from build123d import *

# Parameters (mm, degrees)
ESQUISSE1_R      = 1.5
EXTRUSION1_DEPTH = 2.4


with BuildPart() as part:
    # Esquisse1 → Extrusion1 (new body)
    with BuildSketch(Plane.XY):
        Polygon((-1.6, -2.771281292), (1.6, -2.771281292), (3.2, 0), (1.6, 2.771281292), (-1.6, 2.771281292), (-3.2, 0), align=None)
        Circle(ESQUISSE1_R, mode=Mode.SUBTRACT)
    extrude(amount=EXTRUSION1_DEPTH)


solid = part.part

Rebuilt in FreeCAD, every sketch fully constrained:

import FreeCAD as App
import Part
import Sketcher

V = App.Vector
Q = App.Units.Quantity

doc = App.newDocument("Part")
body = doc.addObject("PartDesign::Body", "Body")

sketch1 = doc.addObject("Sketcher::SketchObject", "Sketch")
body.addObject(sketch1)
sketch1.AttachmentSupport = (doc.XY_Plane, [""])
sketch1.MapMode = "FlatFace"
sketch1.addGeometry([
    Part.LineSegment(V(-1.6, -2.8, 0), V(1.6, -2.8, 0)),
    Part.LineSegment(V(1.6, -2.8, 0), V(3.2, 0, 0)),
    Part.LineSegment(V(3.2, 0, 0), V(1.6, 2.8, 0)),
    Part.LineSegment(V(1.6, 2.8, 0), V(-1.6, 2.8, 0)),
    Part.LineSegment(V(-1.6, 2.8, 0), V(-3.2, 0, 0)),
    Part.LineSegment(V(-3.2, 0, 0), V(-1.6, -2.8, 0)),
    Part.Circle(V(0, 0, 0), V(0, 0, 1), 1.5),
], False)
sketch1.addConstraint([
    Sketcher.Constraint("Coincident", 0, 2, 1, 1),
    Sketcher.Constraint("Coincident", 1, 2, 2, 1),
    Sketcher.Constraint("Coincident", 2, 2, 3, 1),
    Sketcher.Constraint("Coincident", 3, 2, 4, 1),
    Sketcher.Constraint("Coincident", 4, 2, 5, 1),
    Sketcher.Constraint("Coincident", 5, 2, 0, 1),
    Sketcher.Constraint("Horizontal", 0),
    Sketcher.Constraint("Horizontal", 3),
    Sketcher.Constraint("Coincident", 6, 3, -1, 1),
    Sketcher.Constraint("Symmetric", 0, 2, 3, 2, -1, 1),
    Sketcher.Constraint("Symmetric", 1, 2, 4, 2, -1, 1),
    Sketcher.Constraint("PointOnObject", 1, 2, -1),
    Sketcher.Constraint("Parallel", 2, 5),
    Sketcher.Constraint("Vertical", 0, 2, 2, 2),
    Sketcher.Constraint("Diameter", 6, Q("3 mm")),
    Sketcher.Constraint("Angle", 1, Q("60 deg")),
    Sketcher.Constraint("DistanceX", 0, 1, 0, 2, Q("3.2 mm")),
    Sketcher.Constraint("Distance", 1, Q("3.2 mm")),
])
pad1 = doc.addObject("PartDesign::Pad", "Pad")
body.addObject(pad1)
pad1.Profile = sketch1
pad1.Length = 2.4

doc.recompute()
